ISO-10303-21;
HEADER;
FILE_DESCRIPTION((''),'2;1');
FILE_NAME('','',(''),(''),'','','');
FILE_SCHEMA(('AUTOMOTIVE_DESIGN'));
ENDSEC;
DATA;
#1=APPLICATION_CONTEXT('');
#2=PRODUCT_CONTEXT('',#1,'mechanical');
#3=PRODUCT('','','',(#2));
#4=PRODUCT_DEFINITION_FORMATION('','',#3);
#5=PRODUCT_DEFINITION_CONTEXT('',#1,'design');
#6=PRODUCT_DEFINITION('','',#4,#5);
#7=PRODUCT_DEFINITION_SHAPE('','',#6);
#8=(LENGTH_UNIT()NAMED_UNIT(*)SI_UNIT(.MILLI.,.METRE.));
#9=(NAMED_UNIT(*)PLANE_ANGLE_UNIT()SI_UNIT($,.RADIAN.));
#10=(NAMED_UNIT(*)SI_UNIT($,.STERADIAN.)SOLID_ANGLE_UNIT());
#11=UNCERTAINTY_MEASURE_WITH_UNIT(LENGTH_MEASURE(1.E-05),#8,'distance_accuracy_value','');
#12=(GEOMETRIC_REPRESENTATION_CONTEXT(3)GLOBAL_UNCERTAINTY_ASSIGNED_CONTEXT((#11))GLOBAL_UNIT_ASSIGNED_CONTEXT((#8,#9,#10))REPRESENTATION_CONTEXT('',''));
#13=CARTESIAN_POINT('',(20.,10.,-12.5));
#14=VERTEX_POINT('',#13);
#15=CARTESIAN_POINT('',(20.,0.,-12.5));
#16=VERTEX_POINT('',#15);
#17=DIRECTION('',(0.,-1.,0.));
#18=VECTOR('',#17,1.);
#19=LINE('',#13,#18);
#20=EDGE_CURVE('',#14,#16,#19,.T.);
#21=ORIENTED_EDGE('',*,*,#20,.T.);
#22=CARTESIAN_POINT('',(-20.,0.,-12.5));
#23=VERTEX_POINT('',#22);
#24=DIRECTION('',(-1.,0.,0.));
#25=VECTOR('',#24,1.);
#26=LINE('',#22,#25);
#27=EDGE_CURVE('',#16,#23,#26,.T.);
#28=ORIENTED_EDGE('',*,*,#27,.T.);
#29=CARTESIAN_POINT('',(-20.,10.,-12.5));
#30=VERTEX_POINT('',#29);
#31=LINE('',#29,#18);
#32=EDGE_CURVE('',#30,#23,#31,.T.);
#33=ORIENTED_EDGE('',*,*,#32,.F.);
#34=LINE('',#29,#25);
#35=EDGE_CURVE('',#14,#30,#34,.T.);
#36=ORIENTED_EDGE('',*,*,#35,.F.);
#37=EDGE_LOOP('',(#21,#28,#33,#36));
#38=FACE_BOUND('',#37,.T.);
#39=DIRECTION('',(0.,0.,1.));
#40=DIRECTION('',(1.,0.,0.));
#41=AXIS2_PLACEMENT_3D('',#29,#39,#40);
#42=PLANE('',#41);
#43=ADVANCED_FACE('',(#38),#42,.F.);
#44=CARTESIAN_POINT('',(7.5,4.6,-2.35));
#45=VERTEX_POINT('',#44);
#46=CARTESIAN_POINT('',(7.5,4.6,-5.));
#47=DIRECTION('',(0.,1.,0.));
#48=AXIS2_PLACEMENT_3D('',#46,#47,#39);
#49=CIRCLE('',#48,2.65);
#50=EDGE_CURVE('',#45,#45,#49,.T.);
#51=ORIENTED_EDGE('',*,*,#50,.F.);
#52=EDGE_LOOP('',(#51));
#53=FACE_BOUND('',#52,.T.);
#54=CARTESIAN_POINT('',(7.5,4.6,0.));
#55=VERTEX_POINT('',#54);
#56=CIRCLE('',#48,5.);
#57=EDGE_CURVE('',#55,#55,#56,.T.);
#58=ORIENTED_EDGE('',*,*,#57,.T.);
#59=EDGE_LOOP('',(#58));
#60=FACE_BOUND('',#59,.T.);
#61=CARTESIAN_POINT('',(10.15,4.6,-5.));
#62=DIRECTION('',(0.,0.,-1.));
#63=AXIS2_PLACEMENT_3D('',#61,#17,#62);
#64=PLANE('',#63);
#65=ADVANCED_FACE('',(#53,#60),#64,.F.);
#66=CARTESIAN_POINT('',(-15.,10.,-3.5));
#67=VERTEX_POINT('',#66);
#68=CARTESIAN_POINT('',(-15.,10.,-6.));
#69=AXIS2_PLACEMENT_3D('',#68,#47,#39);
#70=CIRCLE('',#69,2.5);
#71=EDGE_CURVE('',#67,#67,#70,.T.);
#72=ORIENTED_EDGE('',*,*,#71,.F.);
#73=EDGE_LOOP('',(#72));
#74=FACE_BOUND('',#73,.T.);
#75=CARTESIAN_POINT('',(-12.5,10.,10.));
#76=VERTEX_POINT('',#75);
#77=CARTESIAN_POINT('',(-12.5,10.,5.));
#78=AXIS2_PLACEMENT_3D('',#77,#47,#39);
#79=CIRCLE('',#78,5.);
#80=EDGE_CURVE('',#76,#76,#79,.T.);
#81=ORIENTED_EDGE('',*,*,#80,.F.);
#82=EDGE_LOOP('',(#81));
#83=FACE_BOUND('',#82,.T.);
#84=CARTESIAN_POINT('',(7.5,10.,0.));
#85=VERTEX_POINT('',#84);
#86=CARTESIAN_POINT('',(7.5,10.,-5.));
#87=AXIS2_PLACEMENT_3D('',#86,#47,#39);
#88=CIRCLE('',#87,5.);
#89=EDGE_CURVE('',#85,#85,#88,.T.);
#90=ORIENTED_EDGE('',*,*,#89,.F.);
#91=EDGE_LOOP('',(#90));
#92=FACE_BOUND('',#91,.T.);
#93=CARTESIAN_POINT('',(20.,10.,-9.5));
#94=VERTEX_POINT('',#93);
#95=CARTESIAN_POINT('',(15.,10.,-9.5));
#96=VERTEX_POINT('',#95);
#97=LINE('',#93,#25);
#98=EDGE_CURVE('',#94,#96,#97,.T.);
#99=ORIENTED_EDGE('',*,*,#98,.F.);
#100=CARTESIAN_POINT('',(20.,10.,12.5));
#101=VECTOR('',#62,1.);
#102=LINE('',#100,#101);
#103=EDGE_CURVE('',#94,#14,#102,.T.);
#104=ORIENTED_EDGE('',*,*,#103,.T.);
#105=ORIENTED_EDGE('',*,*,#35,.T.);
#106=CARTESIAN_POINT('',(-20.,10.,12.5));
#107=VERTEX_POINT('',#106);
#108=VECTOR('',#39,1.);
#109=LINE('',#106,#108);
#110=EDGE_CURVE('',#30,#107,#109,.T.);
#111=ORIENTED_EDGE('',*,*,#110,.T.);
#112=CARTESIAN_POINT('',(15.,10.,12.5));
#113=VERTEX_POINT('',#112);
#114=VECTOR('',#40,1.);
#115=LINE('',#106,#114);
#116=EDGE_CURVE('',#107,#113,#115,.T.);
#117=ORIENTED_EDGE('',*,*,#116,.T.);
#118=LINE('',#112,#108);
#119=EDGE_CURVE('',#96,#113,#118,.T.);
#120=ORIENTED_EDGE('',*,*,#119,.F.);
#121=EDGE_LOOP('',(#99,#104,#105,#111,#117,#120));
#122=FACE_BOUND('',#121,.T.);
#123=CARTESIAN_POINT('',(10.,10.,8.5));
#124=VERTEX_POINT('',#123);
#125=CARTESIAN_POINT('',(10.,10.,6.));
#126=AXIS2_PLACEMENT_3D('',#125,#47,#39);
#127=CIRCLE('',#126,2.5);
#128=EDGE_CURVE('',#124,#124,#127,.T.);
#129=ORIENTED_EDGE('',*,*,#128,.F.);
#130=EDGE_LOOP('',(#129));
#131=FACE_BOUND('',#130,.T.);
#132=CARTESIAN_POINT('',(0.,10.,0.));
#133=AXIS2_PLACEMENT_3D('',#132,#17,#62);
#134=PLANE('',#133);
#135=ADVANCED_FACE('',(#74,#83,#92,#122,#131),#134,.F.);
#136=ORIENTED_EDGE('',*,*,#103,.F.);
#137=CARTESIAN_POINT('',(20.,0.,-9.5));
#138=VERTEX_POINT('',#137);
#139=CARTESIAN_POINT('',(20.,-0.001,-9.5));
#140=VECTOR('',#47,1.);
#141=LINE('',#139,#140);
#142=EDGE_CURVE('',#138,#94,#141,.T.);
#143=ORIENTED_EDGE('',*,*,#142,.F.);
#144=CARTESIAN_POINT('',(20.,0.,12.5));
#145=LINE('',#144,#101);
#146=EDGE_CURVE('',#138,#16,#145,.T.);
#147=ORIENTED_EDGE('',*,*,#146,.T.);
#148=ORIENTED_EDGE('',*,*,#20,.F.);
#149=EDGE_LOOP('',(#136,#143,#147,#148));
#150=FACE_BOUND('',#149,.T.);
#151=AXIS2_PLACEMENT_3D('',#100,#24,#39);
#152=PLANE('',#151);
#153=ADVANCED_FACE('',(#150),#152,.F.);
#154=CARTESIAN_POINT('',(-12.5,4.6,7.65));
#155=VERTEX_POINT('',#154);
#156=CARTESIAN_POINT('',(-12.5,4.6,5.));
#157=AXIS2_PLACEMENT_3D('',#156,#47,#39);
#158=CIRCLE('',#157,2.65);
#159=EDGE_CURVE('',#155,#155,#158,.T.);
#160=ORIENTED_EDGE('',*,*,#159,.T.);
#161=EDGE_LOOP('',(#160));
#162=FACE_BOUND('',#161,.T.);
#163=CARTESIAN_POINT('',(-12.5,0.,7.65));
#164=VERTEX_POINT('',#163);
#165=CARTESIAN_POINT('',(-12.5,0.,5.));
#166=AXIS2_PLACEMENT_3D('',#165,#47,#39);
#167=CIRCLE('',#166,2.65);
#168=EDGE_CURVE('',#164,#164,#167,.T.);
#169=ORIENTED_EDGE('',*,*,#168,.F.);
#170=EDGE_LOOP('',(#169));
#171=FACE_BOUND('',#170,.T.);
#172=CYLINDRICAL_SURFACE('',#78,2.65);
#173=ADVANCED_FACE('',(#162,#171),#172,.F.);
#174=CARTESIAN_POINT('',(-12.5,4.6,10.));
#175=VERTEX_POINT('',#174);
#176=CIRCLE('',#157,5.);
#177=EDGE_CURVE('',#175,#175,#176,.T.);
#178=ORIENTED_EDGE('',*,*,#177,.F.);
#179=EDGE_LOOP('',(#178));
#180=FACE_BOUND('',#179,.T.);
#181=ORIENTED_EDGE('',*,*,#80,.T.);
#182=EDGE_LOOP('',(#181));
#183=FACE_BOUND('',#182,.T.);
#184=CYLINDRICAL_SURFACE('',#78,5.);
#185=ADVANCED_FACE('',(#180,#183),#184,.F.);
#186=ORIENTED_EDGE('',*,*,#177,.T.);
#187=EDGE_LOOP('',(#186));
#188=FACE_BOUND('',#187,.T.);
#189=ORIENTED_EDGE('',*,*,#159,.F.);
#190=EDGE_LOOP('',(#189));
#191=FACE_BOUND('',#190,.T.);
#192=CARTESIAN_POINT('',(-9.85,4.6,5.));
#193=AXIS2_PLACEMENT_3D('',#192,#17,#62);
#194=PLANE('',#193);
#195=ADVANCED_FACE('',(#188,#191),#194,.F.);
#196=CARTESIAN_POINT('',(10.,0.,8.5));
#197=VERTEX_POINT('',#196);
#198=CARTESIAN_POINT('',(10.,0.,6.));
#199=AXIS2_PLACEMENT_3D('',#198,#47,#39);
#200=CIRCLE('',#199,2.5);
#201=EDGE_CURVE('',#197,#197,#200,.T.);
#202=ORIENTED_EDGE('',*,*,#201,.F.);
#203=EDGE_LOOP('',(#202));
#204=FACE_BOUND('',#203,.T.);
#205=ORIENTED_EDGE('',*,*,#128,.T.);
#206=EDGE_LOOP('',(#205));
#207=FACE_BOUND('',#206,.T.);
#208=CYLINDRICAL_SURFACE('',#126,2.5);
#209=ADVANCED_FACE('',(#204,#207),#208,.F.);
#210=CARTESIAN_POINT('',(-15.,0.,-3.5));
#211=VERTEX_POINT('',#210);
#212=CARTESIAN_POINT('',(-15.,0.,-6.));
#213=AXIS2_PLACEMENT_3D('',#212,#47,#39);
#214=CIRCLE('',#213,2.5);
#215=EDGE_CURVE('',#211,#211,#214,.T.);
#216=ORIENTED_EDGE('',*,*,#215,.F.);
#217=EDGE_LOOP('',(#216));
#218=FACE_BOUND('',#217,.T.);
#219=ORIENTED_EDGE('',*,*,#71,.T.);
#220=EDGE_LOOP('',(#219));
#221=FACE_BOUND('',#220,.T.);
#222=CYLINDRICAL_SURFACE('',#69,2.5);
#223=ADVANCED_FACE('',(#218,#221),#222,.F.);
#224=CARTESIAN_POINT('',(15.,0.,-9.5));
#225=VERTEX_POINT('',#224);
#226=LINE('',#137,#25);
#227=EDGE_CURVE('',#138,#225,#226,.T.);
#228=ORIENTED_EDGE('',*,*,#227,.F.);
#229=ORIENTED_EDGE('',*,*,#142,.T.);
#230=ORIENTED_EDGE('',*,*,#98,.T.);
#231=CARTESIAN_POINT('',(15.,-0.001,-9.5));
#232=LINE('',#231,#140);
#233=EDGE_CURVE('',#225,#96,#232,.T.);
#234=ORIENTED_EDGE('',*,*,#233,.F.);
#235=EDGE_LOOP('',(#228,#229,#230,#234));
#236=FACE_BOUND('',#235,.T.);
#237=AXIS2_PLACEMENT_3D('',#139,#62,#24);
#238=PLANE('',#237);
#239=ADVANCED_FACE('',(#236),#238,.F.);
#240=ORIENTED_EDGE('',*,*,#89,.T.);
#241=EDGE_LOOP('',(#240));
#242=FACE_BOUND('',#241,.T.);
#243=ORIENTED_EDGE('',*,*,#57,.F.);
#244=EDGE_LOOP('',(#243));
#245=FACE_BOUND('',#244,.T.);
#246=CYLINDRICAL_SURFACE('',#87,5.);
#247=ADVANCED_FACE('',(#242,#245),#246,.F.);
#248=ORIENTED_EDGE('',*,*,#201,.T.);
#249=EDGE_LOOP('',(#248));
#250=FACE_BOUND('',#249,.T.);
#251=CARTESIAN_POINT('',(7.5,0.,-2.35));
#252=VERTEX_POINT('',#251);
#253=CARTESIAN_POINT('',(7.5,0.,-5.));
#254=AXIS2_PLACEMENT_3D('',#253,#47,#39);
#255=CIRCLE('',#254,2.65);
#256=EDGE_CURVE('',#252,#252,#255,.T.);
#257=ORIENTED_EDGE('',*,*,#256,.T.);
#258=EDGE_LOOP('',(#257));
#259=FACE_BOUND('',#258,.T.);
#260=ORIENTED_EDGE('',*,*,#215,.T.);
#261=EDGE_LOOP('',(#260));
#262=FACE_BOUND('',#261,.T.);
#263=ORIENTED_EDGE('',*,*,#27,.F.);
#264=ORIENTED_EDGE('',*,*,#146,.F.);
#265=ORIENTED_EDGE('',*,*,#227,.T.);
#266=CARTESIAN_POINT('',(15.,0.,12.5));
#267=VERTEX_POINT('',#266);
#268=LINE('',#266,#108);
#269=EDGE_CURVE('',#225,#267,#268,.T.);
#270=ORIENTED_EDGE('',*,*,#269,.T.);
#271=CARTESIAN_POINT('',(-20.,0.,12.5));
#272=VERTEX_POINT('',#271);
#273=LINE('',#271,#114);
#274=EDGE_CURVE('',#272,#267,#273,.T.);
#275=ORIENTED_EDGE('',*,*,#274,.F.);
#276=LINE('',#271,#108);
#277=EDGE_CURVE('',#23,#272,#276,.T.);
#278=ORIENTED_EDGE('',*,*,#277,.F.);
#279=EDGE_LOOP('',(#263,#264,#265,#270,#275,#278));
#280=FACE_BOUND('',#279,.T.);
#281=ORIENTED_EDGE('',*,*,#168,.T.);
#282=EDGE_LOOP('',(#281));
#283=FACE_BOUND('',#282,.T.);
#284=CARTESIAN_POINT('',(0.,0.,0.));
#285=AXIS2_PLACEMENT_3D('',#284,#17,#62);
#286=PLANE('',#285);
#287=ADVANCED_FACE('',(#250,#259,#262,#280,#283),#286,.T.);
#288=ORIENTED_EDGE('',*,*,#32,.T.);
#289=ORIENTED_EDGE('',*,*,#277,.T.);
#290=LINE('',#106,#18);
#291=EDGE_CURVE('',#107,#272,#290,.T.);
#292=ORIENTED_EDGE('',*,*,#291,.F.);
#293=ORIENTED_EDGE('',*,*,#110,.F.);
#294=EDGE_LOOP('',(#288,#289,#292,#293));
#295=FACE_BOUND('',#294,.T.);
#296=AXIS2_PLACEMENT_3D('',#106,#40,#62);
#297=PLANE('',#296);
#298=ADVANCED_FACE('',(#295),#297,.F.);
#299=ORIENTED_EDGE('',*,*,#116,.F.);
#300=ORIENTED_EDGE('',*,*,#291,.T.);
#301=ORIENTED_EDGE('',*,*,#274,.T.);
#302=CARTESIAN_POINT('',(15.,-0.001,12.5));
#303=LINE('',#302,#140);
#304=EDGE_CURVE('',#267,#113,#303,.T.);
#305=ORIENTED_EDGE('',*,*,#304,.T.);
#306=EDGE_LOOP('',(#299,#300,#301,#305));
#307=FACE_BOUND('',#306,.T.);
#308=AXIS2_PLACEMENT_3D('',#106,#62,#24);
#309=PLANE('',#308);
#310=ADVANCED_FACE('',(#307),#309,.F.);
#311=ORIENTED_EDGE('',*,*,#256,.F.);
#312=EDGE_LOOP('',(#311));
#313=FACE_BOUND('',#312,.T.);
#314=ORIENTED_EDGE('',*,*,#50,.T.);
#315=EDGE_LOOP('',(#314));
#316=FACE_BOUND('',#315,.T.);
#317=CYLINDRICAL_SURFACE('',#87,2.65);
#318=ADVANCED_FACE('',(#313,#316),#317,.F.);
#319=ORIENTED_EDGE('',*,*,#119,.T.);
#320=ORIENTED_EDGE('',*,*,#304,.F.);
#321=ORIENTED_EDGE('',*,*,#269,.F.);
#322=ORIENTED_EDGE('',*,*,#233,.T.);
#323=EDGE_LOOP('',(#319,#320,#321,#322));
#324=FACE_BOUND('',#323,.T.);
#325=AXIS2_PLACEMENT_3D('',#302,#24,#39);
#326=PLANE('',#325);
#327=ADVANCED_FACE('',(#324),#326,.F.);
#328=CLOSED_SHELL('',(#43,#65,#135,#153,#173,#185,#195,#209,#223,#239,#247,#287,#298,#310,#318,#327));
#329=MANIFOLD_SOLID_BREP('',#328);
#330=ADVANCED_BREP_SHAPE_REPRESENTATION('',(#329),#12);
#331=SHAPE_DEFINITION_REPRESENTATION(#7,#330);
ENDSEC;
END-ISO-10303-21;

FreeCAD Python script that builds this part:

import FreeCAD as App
import Part
import Sketcher
Q = App.Units.Quantity

doc = App.newDocument("Part")
params = doc.addObject("Spreadsheet::Sheet", "Params")
for row, (alias, value) in enumerate([
    ("sketch1_width", "40 mm"),
    ("sketch1_height", "25 mm"),
    ("pad1_length", "10 mm"),
    ("sketch2_width", "5 mm"),
    ("sketch2_height", "22 mm"),
    ("sketch3_diameter", "5 mm"),
    ("hole_diameter", "5 mm"),
    ("sketch4_diameter", "5.3 mm"),
    ("hole2_diameter", "5.3 mm"),
    ("hole2_cbore_diameter", "10 mm"),
    ("hole2_cbore_depth", "5.4 mm"),
], start=1):
    params.set(f"A{row}", alias)
    params.set(f"B{row}", "=" + value)
    params.setAlias(f"B{row}", alias)

body = doc.addObject("PartDesign::Body", "Body")

sketch1 = doc.addObject("Sketcher::SketchObject", "Sketch")
body.addObject(sketch1)
sketch1.AttachmentSupport = (doc.XZ_Plane, [""])
sketch1.MapMode = "FlatFace"
sketch1.addGeometry([
    Part.LineSegment(App.Vector(-20, -12.5, 0), App.Vector(-20, 12.5, 0)),
    Part.LineSegment(App.Vector(-20, 12.5, 0), App.Vector(20, 12.5, 0)),
    Part.LineSegment(App.Vector(20, 12.5, 0), App.Vector(20, -12.5, 0)),
    Part.LineSegment(App.Vector(20, -12.5, 0), App.Vector(-20, -12.5, 0)),
], False)
sketch1.addConstraint([
    Sketcher.Constraint("Coincident", 0, 2, 1, 1),
    Sketcher.Constraint("Coincident", 1, 2, 2, 1),
    Sketcher.Constraint("Coincident", 2, 2, 3, 1),
    Sketcher.Constraint("Coincident", 3, 2, 0, 1),
    Sketcher.Constraint("Vertical", 0),
    Sketcher.Constraint("Horizontal", 1),
    Sketcher.Constraint("Vertical", 2),
    Sketcher.Constraint("Horizontal", 3),
    Sketcher.Constraint("Symmetric", 0, 2, 2, 2, -1, 1),
    Sketcher.Constraint("DistanceX", 1, 1, 1, 2, Q("40 mm")),
    Sketcher.Constraint("DistanceY", 0, 1, 0, 2, Q("25 mm")),
])
sketch1.setExpression("Constraints[9]", "Params.sketch1_width")
sketch1.setExpression("Constraints[10]", "Params.sketch1_height")
pad1 = doc.addObject("PartDesign::Pad", "Pad")
body.addObject(pad1)
pad1.Profile = sketch1
pad1.setExpression("Length", "Params.pad1_length")
pad1.Reversed = True

sketch2 = doc.addObject("Sketcher::SketchObject", "Sketch001")
body.addObject(sketch2)
sketch2.AttachmentSupport = (doc.XZ_Plane, [""])
sketch2.MapMode = "FlatFace"
sketch2.AttachmentOffset = App.Placement(App.Vector(0, 0, -10), App.Rotation())
sketch2.addGeometry([
    Part.LineSegment(App.Vector(15, -9.5, 0), App.Vector(15, 12.5, 0)),
    Part.LineSegment(App.Vector(15, 12.5, 0), App.Vector(20, 12.5, 0)),
    Part.LineSegment(App.Vector(20, 12.5, 0), App.Vector(20, -9.5, 0)),
    Part.LineSegment(App.Vector(20, -9.5, 0), App.Vector(15, -9.5, 0)),
], False)
sketch2.addConstraint([
    Sketcher.Constraint("Coincident", 0, 2, 1, 1),
    Sketcher.Constraint("Coincident", 1, 2, 2, 1),
    Sketcher.Constraint("Coincident", 2, 2, 3, 1),
    Sketcher.Constraint("Coincident", 3, 2, 0, 1),
    Sketcher.Constraint("Vertical", 0),
    Sketcher.Constraint("Horizontal", 1),
    Sketcher.Constraint("Vertical", 2),
    Sketcher.Constraint("Horizontal", 3),
    Sketcher.Constraint("DistanceX", 1, 1, 1, 2, Q("5 mm")),
    Sketcher.Constraint("DistanceY", 0, 1, 0, 2, Q("22 mm")),
    Sketcher.Constraint("DistanceX", -1, 1, 0, 2, Q("15 mm")),
    Sketcher.Constraint("DistanceY", -1, 1, 0, 2, Q("12.5 mm")),
])
sketch2.setExpression("Constraints[8]", "Params.sketch2_width")
sketch2.setExpression("Constraints[9]", "Params.sketch2_height")
pocket1 = doc.addObject("PartDesign::Pocket", "Pocket")
body.addObject(pocket1)
pocket1.Profile = sketch2
pocket1.Type = "UpToFirst"
pocket1.Reversed = True

sketch3 = doc.addObject("Sketcher::SketchObject", "Sketch002")
body.addObject(sketch3)
sketch3.AttachmentSupport = (doc.XZ_Plane, [""])
sketch3.MapMode = "FlatFace"
sketch3.AttachmentOffset = App.Placement(App.Vector(0, 0, -10), App.Rotation())
sketch3.addGeometry([
    Part.Circle(App.Vector(-15, -6, 0), App.Vector(0, 0, 1), 2.5),
    Part.Circle(App.Vector(10, 6, 0), App.Vector(0, 0, 1), 2.5),
], False)
sketch3.addConstraint([
    Sketcher.Constraint("Equal", 0, 1),
    Sketcher.Constraint("Diameter", 0, Q("5 mm")),
    Sketcher.Constraint("DistanceX", 0, 3, -1, 1, Q("15 mm")),
    Sketcher.Constraint("DistanceY", 0, 3, -1, 1, Q("6 mm")),
    Sketcher.Constraint("DistanceX", -1, 1, 1, 3, Q("10 mm")),
    Sketcher.Constraint("DistanceY", -1, 1, 1, 3, Q("6 mm")),
])
sketch3.setExpression("Constraints[1]", "Params.sketch3_diameter")
doc.recompute()
hole = doc.addObject("PartDesign::Hole", "Hole")
body.addObject(hole)
hole.Profile = sketch3
hole.ThreadType = "None"
hole.setExpression("Diameter", "Params.hole_diameter")
hole.DepthType = "ThroughAll"
hole.Reversed = True

sketch4 = doc.addObject("Sketcher::SketchObject", "Sketch003")
body.addObject(sketch4)
sketch4.AttachmentSupport = (doc.XZ_Plane, [""])
sketch4.MapMode = "FlatFace"
sketch4.AttachmentOffset = App.Placement(App.Vector(0, 0, -10), App.Rotation())
sketch4.addGeometry([
    Part.Circle(App.Vector(-12.5, 5, 0), App.Vector(0, 0, 1), 2.65),
    Part.Circle(App.Vector(7.5, -5, 0), App.Vector(0, 0, 1), 2.65),
], False)
sketch4.addConstraint([
    Sketcher.Constraint("Equal", 0, 1),
    Sketcher.Constraint("Diameter", 0, Q("5.3 mm")),
    Sketcher.Constraint("DistanceY", -1, 1, 0, 3, Q("5 mm")),
    Sketcher.Constraint("DistanceY", 1, 3, -1, 1, Q("5 mm")),
    Sketcher.Constraint("DistanceX", 0, 3, 1, 3, Q("20 mm")),
    Sketcher.Constraint("DistanceX", 0, 3, -1, 1, Q("12.5 mm")),
])
sketch4.setExpression("Constraints[1]", "Params.sketch4_diameter")
doc.recompute()
hole2 = doc.addObject("PartDesign::Hole", "Hole001")
body.addObject(hole2)
hole2.Profile = sketch4
hole2.ThreadType = "None"
hole2.setExpression("Diameter", "Params.hole2_diameter")
hole2.DepthType = "ThroughAll"
hole2.HoleCutType = "Counterbore"
hole2.setExpression("HoleCutDiameter", "Params.hole2_cbore_diameter")
hole2.setExpression("HoleCutDepth", "Params.hole2_cbore_depth")
hole2.Reversed = True

doc.recompute()
